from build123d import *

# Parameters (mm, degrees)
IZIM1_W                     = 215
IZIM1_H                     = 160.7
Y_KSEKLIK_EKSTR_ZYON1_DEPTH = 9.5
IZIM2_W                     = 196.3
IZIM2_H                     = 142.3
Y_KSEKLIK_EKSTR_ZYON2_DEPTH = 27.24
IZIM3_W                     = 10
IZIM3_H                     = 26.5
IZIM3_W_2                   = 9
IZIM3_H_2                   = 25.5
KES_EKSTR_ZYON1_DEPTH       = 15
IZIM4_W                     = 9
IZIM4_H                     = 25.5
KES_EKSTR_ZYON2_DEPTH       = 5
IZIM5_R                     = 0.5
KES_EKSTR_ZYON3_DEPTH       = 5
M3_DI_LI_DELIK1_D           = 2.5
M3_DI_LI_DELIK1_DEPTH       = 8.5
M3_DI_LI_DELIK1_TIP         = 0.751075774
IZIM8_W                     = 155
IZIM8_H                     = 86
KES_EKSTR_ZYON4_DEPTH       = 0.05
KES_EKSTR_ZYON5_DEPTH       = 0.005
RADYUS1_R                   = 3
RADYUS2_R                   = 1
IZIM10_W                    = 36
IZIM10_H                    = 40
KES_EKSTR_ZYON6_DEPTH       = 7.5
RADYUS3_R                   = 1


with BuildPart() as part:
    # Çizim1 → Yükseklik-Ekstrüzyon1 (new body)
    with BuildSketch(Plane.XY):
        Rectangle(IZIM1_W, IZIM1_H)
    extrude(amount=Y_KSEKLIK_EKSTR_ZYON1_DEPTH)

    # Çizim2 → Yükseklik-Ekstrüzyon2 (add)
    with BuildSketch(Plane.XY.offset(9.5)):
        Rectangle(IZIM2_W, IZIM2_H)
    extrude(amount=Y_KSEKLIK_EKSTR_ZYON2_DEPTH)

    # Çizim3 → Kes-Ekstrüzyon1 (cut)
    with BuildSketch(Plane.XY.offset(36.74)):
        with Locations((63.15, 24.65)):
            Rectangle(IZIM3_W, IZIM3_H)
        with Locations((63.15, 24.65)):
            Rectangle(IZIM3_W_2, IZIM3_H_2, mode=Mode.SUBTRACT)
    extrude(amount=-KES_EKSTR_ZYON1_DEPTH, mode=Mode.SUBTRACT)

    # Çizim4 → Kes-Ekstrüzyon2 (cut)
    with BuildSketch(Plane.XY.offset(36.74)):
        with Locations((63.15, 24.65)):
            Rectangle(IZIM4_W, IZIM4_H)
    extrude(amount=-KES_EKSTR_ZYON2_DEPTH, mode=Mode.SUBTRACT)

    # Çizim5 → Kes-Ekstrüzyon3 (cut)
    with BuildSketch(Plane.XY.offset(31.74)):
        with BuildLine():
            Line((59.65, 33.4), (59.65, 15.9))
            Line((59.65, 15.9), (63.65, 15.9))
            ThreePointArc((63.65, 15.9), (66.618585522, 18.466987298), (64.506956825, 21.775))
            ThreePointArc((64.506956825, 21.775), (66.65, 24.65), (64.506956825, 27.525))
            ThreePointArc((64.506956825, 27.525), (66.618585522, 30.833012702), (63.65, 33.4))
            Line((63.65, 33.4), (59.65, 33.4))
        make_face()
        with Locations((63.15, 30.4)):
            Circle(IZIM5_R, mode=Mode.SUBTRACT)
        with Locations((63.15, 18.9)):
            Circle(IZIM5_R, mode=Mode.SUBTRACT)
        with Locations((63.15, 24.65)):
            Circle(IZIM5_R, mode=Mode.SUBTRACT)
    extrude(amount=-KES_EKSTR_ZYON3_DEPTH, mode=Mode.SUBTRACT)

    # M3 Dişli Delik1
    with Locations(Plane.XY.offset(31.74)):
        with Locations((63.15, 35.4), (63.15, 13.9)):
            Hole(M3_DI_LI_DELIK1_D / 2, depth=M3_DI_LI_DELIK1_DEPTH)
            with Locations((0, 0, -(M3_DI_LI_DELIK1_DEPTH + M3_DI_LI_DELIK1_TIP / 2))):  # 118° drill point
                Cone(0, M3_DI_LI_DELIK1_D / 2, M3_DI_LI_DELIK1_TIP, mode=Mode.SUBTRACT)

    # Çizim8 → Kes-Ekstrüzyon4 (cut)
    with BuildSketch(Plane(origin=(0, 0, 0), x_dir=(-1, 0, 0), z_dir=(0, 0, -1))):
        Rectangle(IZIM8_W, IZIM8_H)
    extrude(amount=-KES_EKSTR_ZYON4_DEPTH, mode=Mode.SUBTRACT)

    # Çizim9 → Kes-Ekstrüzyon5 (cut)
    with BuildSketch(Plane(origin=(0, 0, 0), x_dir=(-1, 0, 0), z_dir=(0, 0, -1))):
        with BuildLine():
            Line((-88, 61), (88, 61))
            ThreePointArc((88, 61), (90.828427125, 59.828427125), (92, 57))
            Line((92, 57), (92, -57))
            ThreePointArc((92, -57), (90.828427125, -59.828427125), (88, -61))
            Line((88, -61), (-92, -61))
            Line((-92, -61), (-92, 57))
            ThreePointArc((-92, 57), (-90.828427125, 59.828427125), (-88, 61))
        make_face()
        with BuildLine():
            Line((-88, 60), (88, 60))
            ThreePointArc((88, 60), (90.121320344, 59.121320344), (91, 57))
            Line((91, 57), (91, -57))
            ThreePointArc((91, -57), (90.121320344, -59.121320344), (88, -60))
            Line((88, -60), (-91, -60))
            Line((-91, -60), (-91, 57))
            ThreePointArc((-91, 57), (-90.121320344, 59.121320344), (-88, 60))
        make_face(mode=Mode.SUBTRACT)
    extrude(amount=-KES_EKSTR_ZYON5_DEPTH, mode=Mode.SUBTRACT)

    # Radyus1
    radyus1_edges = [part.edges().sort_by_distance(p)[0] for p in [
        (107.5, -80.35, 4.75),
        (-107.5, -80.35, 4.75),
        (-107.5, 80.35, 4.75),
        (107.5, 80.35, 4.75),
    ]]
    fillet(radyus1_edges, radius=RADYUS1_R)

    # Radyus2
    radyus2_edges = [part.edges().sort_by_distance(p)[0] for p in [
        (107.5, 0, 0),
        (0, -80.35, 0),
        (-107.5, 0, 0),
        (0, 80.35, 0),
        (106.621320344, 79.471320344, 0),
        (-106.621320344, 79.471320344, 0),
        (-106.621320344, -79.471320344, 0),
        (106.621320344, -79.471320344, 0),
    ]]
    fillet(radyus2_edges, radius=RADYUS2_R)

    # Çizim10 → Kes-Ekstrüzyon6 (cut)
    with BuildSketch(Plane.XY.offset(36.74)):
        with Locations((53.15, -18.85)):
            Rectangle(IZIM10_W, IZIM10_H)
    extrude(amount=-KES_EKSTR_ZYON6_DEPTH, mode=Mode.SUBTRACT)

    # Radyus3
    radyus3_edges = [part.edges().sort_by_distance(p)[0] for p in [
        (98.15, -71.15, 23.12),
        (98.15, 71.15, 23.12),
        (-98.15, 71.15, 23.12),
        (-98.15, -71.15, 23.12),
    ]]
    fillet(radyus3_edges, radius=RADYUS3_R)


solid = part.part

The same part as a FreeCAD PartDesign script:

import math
import FreeCAD as App
import Part
import Sketcher

V = App.Vector
Q = App.Units.Quantity


def edges_at(feature, points):
    """Names of the edges that pass closest to the given points."""
    edges = feature.Shape.Edges
    near = lambda p: min(range(len(edges)), key=lambda i: edges[i].distToShape(Part.Vertex(*p))[0])
    return sorted({f"Edge{near(p) + 1}" for p in points})

doc = App.newDocument("Part")
body = doc.addObject("PartDesign::Body", "Body")

sketch1 = body.newObject("Sketcher::SketchObject", "Sketch")
sketch1.AttachmentSupport = (doc.getObject("XY_Plane"), [""])
sketch1.MapMode = "FlatFace"
sketch1.addGeometry(Part.LineSegment(V(-107.5, 80.35, 0), V(-107.5, -80.35, 0)), False)
sketch1.addGeometry(Part.LineSegment(V(-107.5, -80.35, 0), V(107.5, -80.35, 0)), False)
sketch1.addGeometry(Part.LineSegment(V(107.5, -80.35, 0), V(107.5, 80.35, 0)), False)
sketch1.addGeometry(Part.LineSegment(V(107.5, 80.35, 0), V(-107.5, 80.35, 0)), False)
sketch1.addConstraint(Sketcher.Constraint("Coincident", 0, 2, 1, 1))
sketch1.addConstraint(Sketcher.Constraint("Coincident", 1, 2, 2, 1))
sketch1.addConstraint(Sketcher.Constraint("Coincident", 2, 2, 3, 1))
sketch1.addConstraint(Sketcher.Constraint("Coincident", 3, 2, 0, 1))
sketch1.addConstraint(Sketcher.Constraint("Vertical", 0))
sketch1.addConstraint(Sketcher.Constraint("Horizontal", 1))
sketch1.addConstraint(Sketcher.Constraint("Vertical", 2))
sketch1.addConstraint(Sketcher.Constraint("Horizontal", 3))
sketch1.addConstraint(Sketcher.Constraint("Symmetric", 0, 2, 2, 2, -1, 1))
sketch1.addConstraint(Sketcher.Constraint("DistanceX", 1, 1, 1, 2, Q("215 mm")))
sketch1.addConstraint(Sketcher.Constraint("DistanceY", 0, 2, 0, 1, Q("160.7 mm")))
pad1 = body.newObject("PartDesign::Pad", "Pad")
pad1.Profile = sketch1
pad1.Length = 9.5

sketch2 = body.newObject("Sketcher::SketchObject", "Sketch001")
sketch2.AttachmentSupport = (doc.getObject("XY_Plane"), [""])
sketch2.MapMode = "FlatFace"
sketch2.AttachmentOffset = App.Placement(V(0, 0, 9.5), App.Rotation())
sketch2.addGeometry(Part.LineSegment(V(-98.15, 71.15, 0), V(-98.15, -71.15, 0)), False)
sketch2.addGeometry(Part.LineSegment(V(-98.15, -71.15, 0), V(98.15, -71.15, 0)), False)
sketch2.addGeometry(Part.LineSegment(V(98.15, -71.15, 0), V(98.15, 71.15, 0)), False)
sketch2.addGeometry(Part.LineSegment(V(98.15, 71.15, 0), V(-98.15, 71.15, 0)), False)
sketch2.addConstraint(Sketcher.Constraint("Coincident", 0, 2, 1, 1))
sketch2.addConstraint(Sketcher.Constraint("Coincident", 1, 2, 2, 1))
sketch2.addConstraint(Sketcher.Constraint("Coincident", 2, 2, 3, 1))
sketch2.addConstraint(Sketcher.Constraint("Coincident", 3, 2, 0, 1))
sketch2.addConstraint(Sketcher.Constraint("Vertical", 0))
sketch2.addConstraint(Sketcher.Constraint("Horizontal", 1))
sketch2.addConstraint(Sketcher.Constraint("Vertical", 2))
sketch2.addConstraint(Sketcher.Constraint("Horizontal", 3))
sketch2.addConstraint(Sketcher.Constraint("Symmetric", 0, 2, 2, 2, -1, 1))
sketch2.addConstraint(Sketcher.Constraint("DistanceX", 1, 1, 1, 2, Q("196.3 mm")))
sketch2.addConstraint(Sketcher.Constraint("DistanceY", 0, 2, 0, 1, Q("142.3 mm")))
pad2 = body.newObject("PartDesign::Pad", "Pad001")
pad2.Profile = sketch2
pad2.Length = 27.24

sketch3 = body.newObject("Sketcher::SketchObject", "Sketch002")
sketch3.AttachmentSupport = (doc.getObject("XY_Plane"), [""])
sketch3.MapMode = "FlatFace"
sketch3.AttachmentOffset = App.Placement(V(0, 0, 36.74), App.Rotation())
sketch3.addGeometry(Part.LineSegment(V(58.15, 37.9, 0), V(58.15, 11.4, 0)), False)
sketch3.addGeometry(Part.LineSegment(V(58.15, 11.4, 0), V(68.15, 11.4, 0)), False)
sketch3.addGeometry(Part.LineSegment(V(68.15, 11.4, 0), V(68.15, 37.9, 0)), False)
sketch3.addGeometry(Part.LineSegment(V(68.15, 37.9, 0), V(58.15, 37.9, 0)), False)
sketch3.addGeometry(Part.LineSegment(V(67.65, 11.9, 0), V(58.65, 11.9, 0)), False)
sketch3.addGeometry(Part.LineSegment(V(58.65, 11.9, 0), V(58.65, 37.4, 0)), False)
sketch3.addGeometry(Part.LineSegment(V(58.65, 37.4, 0), V(67.65, 37.4, 0)), False)
sketch3.addGeometry(Part.LineSegment(V(67.65, 37.4, 0), V(67.65, 11.9, 0)), False)
sketch3.addConstraint(Sketcher.Constraint("Coincident", 0, 2, 1, 1))
sketch3.addConstraint(Sketcher.Constraint("Coincident", 1, 2, 2, 1))
sketch3.addConstraint(Sketcher.Constraint("Coincident", 2, 2, 3, 1))
sketch3.addConstraint(Sketcher.Constraint("Coincident", 3, 2, 0, 1))
sketch3.addConstraint(Sketcher.Constraint("Coincident", 4, 2, 5, 1))
sketch3.addConstraint(Sketcher.Constraint("Coincident", 5, 2, 6, 1))
sketch3.addConstraint(Sketcher.Constraint("Coincident", 6, 2, 7, 1))
sketch3.addConstraint(Sketcher.Constraint("Coincident", 7, 2, 4, 1))
sketch3.addConstraint(Sketcher.Constraint("Vertical", 0))
sketch3.addConstraint(Sketcher.Constraint("Horizontal", 1))
sketch3.addConstraint(Sketcher.Constraint("Vertical", 2))
sketch3.addConstraint(Sketcher.Constraint("Horizontal", 3))
sketch3.addConstraint(Sketcher.Constraint("Horizontal", 4))
sketch3.addConstraint(Sketcher.Constraint("Vertical", 5))
sketch3.addConstraint(Sketcher.Constraint("Horizontal", 6))
sketch3.addConstraint(Sketcher.Constraint("Vertical", 7))
sketch3.addConstraint(Sketcher.Constraint("DistanceX", 1, 1, 1, 2, Q("10 mm")))
sketch3.addConstraint(Sketcher.Constraint("DistanceX", 4, 2, 4, 1, Q("9 mm")))
sketch3.addConstraint(Sketcher.Constraint("DistanceY", 0, 2, 0, 1, Q("26.5 mm")))
sketch3.addConstraint(Sketcher.Constraint("DistanceY", 5, 1, 5, 2, Q("25.5 mm")))
sketch3.addConstraint(Sketcher.Constraint("DistanceY", 4, 2, 3, 2, Q("26 mm")))
sketch3.addConstraint(Sketcher.Constraint("DistanceY", -1, 1, 0, 2, Q("11.4 mm")))
sketch3.addConstraint(Sketcher.Constraint("DistanceX", 0, 2, 4, 2, Q("0.5 mm")))
sketch3.addConstraint(Sketcher.Constraint("DistanceX", -1, 1, 0, 2, Q("58.15 mm")))
pocket1 = body.newObject("PartDesign::Pocket", "Pocket")
pocket1.Profile = sketch3
pocket1.Length = 15

sketch4 = body.newObject("Sketcher::SketchObject", "Sketch003")
sketch4.AttachmentSupport = (doc.getObject("XY_Plane"), [""])
sketch4.MapMode = "FlatFace"
sketch4.AttachmentOffset = App.Placement(V(0, 0, 36.74), App.Rotation())
sketch4.addGeometry(Part.LineSegment(V(58.65, 37.4, 0), V(58.65, 11.9, 0)), False)
sketch4.addGeometry(Part.LineSegment(V(58.65, 11.9, 0), V(67.65, 11.9, 0)), False)
sketch4.addGeometry(Part.LineSegment(V(67.65, 11.9, 0), V(67.65, 37.4, 0)), False)
sketch4.addGeometry(Part.LineSegment(V(67.65, 37.4, 0), V(58.65, 37.4, 0)), False)
sketch4.addConstraint(Sketcher.Constraint("Coincident", 0, 2, 1, 1))
sketch4.addConstraint(Sketcher.Constraint("Coincident", 1, 2, 2, 1))
sketch4.addConstraint(Sketcher.Constraint("Coincident", 2, 2, 3, 1))
sketch4.addConstraint(Sketcher.Constraint("Coincident", 3, 2, 0, 1))
sketch4.addConstraint(Sketcher.Constraint("Vertical", 0))
sketch4.addConstraint(Sketcher.Constraint("Horizontal", 1))
sketch4.addConstraint(Sketcher.Constraint("Vertical", 2))
sketch4.addConstraint(Sketcher.Constraint("Horizontal", 3))
sketch4.addConstraint(Sketcher.Constraint("DistanceX", 1, 1, 1, 2, Q("9 mm")))
sketch4.addConstraint(Sketcher.Constraint("DistanceY", 0, 2, 0, 1, Q("25.5 mm")))
sketch4.addConstraint(Sketcher.Constraint("DistanceY", -1, 1, 0, 2, Q("11.9 mm")))
sketch4.addConstraint(Sketcher.Constraint("DistanceX", -1, 1, 0, 2, Q("58.65 mm")))
pocket2 = body.newObject("PartDesign::Pocket", "Pocket001")
pocket2.Profile = sketch4
pocket2.Length = 5

sketch5 = body.newObject("Sketcher::SketchObject", "Sketch004")
sketch5.AttachmentSupport = (doc.getObject("XY_Plane"), [""])
sketch5.MapMode = "FlatFace"
sketch5.AttachmentOffset = App.Placement(V(0, 0, 31.74), App.Rotation())
sketch5.addGeometry(Part.LineSegment(V(59.65, 33.4, 0), V(59.65, 15.9, 0)), False)
sketch5.addGeometry(Part.LineSegment(V(59.65, 15.9, 0), V(63.65, 15.9, 0)), False)
sketch5.addGeometry(Part.ArcOfCircle(Part.Circle(V(63.65, 18.9, 0), V(0, 0, 1), 3), math.radians(-90), math.radians(73.402158)), False)
sketch5.addGeometry(Part.ArcOfCircle(Part.Circle(V(63.65, 24.65, 0), V(0, 0, 1), 3), math.radians(-73.402158), math.radians(73.402158)), False)
sketch5.addGeometry(Part.ArcOfCircle(Part.Circle(V(63.65, 30.4, 0), V(0, 0, 1), 3), math.radians(-73.402158), math.radians(90)), False)
sketch5.addGeometry(Part.LineSegment(V(63.65, 33.4, 0), V(59.65, 33.4, 0)), False)
sketch5.addGeometry(Part.Circle(V(63.15, 18.9, 0), V(0, 0, 1), 0.5), False)
sketch5.addGeometry(Part.Circle(V(63.15, 24.65, 0), V(0, 0, 1), 0.5), False)
sketch5.addGeometry(Part.Circle(V(63.15, 30.4, 0), V(0, 0, 1), 0.5), False)
sketch5.addConstraint(Sketcher.Constraint("Coincident", 0, 2, 1, 1))
sketch5.addConstraint(Sketcher.Constraint("Tangent", 1, 2, 2, 1))
sketch5.addConstraint(Sketcher.Constraint("Coincident", 2, 2, 3, 1))
sketch5.addConstraint(Sketcher.Constraint("Coincident", 3, 2, 4, 1))
sketch5.addConstraint(Sketcher.Constraint("Tangent", 4, 2, 5, 1))
sketch5.addConstraint(Sketcher.Constraint("Coincident", 5, 2, 0, 1))
sketch5.addConstraint(Sketcher.Constraint("Vertical", 0))
sketch5.addConstraint(Sketcher.Constraint("Horizontal", 1))
sketch5.addConstraint(Sketcher.Constraint("Horizontal", 5))
sketch5.addConstraint(Sketcher.Constraint("Equal", 2, 3))
sketch5.addConstraint(Sketcher.Constraint("Equal", 3, 4))
sketch5.addConstraint(Sketcher.Constraint("Equal", 6, 7))
sketch5.addConstraint(Sketcher.Constraint("Equal", 7, 8))
sketch5.addConstraint(Sketcher.Constraint("Horizontal", 2, 3, 6, 3))
sketch5.addConstraint(Sketcher.Constraint("Horizontal", 3, 3, 7, 3))
sketch5.addConstraint(Sketcher.Constraint("Horizontal", 4, 3, 8, 3))
sketch5.addConstraint(Sketcher.Constraint("Vertical", 2, 3, 3, 3))
sketch5.addConstraint(Sketcher.Constraint("Vertical", 3, 3, 4, 3))
sketch5.addConstraint(Sketcher.Constraint("Vertical", 6, 3, 7, 3))
sketch5.addConstraint(Sketcher.Constraint("Vertical", 7, 3, 8, 3))
sketch5.addConstraint(Sketcher.Constraint("Vertical", 2, 2, 3, 2))
sketch5.addConstraint(Sketcher.Constraint("Diameter", 6, Q("1 mm")))
sketch5.addConstraint(Sketcher.Constraint("Radius", 2, Q("3 mm")))
sketch5.addConstraint(Sketcher.Constraint("DistanceX", 1, 1, 1, 2, Q("4 mm")))
sketch5.addConstraint(Sketcher.Constraint("DistanceY", 0, 2, 0, 1, Q("17.5 mm")))
sketch5.addConstraint(Sketcher.Constraint("DistanceY", -1, 1, 2, 3, Q("18.9 mm")))
sketch5.addConstraint(Sketcher.Constraint("DistanceX", 6, 3, 2, 3, Q("0.5 mm")))
sketch5.addConstraint(Sketcher.Constraint("DistanceX", -1, 1, 2, 3, Q("63.65 mm")))
pocket3 = body.newObject("PartDesign::Pocket", "Pocket002")
pocket3.Profile = sketch5
pocket3.Length = 5

sketch6 = body.newObject("Sketcher::SketchObject", "Sketch005")
sketch6.AttachmentSupport = (doc.getObject("XY_Plane"), [""])
sketch6.MapMode = "FlatFace"
sketch6.AttachmentOffset = App.Placement(V(0, 0, 31.74), App.Rotation())
sketch6.addGeometry(Part.Circle(V(63.15, 35.4, 0), V(0, 0, 1), 1.25), False)
sketch6.addGeometry(Part.Circle(V(63.15, 13.9, 0), V(0, 0, 1), 1.25), False)
sketch6.addConstraint(Sketcher.Constraint("Equal", 0, 1))
sketch6.addConstraint(Sketcher.Constraint("Vertical", 0, 3, 1, 3))
sketch6.addConstraint(Sketcher.Constraint("Diameter", 0, Q("2.5 mm")))
sketch6.addConstraint(Sketcher.Constraint("DistanceY", -1, 1, 0, 3, Q("35.4 mm")))
sketch6.addConstraint(Sketcher.Constraint("DistanceY", -1, 1, 1, 3, Q("13.9 mm")))
sketch6.addConstraint(Sketcher.Constraint("DistanceX", -1, 1, 0, 3, Q("63.15 mm")))
doc.recompute()
hole = body.newObject("PartDesign::Hole", "Hole")
hole.Profile = sketch6
hole.ThreadType = "None"
hole.Diameter = 2.5
hole.DepthType = "Dimension"
hole.Depth = 8.5
hole.DrillPoint = "Angled"
hole.DrillPointAngle = 118

sketch7 = body.newObject("Sketcher::SketchObject", "Sketch006")
sketch7.AttachmentSupport = (doc.getObject("XY_Plane"), [""])
sketch7.MapMode = "FlatFace"
sketch7.addGeometry(Part.LineSegment(V(77.5, 43, 0), V(77.5, -43, 0)), False)
sketch7.addGeometry(Part.LineSegment(V(77.5, -43, 0), V(-77.5, -43, 0)), False)
sketch7.addGeometry(Part.LineSegment(V(-77.5, -43, 0), V(-77.5, 43, 0)), False)
sketch7.addGeometry(Part.LineSegment(V(-77.5, 43, 0), V(77.5, 43, 0)), False)
sketch7.addConstraint(Sketcher.Constraint("Coincident", 0, 2, 1, 1))
sketch7.addConstraint(Sketcher.Constraint("Coincident", 1, 2, 2, 1))
sketch7.addConstraint(Sketcher.Constraint("Coincident", 2, 2, 3, 1))
sketch7.addConstraint(Sketcher.Constraint("Coincident", 3, 2, 0, 1))
sketch7.addConstraint(Sketcher.Constraint("Vertical", 0))
sketch7.addConstraint(Sketcher.Constraint("Horizontal", 1))
sketch7.addConstraint(Sketcher.Constraint("Vertical", 2))
sketch7.addConstraint(Sketcher.Constraint("Horizontal", 3))
sketch7.addConstraint(Sketcher.Constraint("Symmetric", 0, 2, 2, 2, -1, 1))
sketch7.addConstraint(Sketcher.Constraint("DistanceX", 1, 2, 1, 1, Q("155 mm")))
sketch7.addConstraint(Sketcher.Constraint("DistanceY", 0, 2, 0, 1, Q("86 mm")))
pocket4 = body.newObject("PartDesign::Pocket", "Pocket003")
pocket4.Profile = sketch7
pocket4.Length = 0.05
pocket4.Reversed = True

sketch8 = body.newObject("Sketcher::SketchObject", "Sketch007")
sketch8.AttachmentSupport = (doc.getObject("XY_Plane"), [""])
sketch8.MapMode = "FlatFace"
sketch8.addGeometry(Part.LineSegment(V(-88, 61, 0), V(88, 61, 0)), False)
sketch8.addGeometry(Part.ArcOfCircle(Part.Circle(V(88, 57, 0), V(0, 0, 1), 4), math.radians(0), math.radians(90)), False)
sketch8.addGeometry(Part.LineSegment(V(92, 57, 0), V(92, -61, 0)), False)
sketch8.addGeometry(Part.LineSegment(V(92, -61, 0), V(-88, -61, 0)), False)
sketch8.addGeometry(Part.ArcOfCircle(Part.Circle(V(-88, -57, 0), V(0, 0, 1), 4), math.radians(180), math.radians(270)), False)
sketch8.addGeometry(Part.LineSegment(V(-92, -57, 0), V(-92, 57, 0)), False)
sketch8.addGeometry(Part.ArcOfCircle(Part.Circle(V(-88, 57, 0), V(0, 0, 1), 4), math.radians(90), math.radians(180)), False)
sketch8.addGeometry(Part.LineSegment(V(88, 60, 0), V(-88, 60, 0)), False)
sketch8.addGeometry(Part.ArcOfCircle(Part.Circle(V(-88, 57, 0), V(0, 0, 1), 3), math.radians(90), math.radians(180)), False)
sketch8.addGeometry(Part.LineSegment(V(-91, 57, 0), V(-91, -57, 0)), False)
sketch8.addGeometry(Part.ArcOfCircle(Part.Circle(V(-88, -57, 0), V(0, 0, 1), 3), math.radians(180), math.radians(270)), False)
sketch8.addGeometry(Part.LineSegment(V(-88, -60, 0), V(91, -60, 0)), False)
sketch8.addGeometry(Part.LineSegment(V(91, -60, 0), V(91, 57, 0)), False)
sketch8.addGeometry(Part.ArcOfCircle(Part.Circle(V(88, 57, 0), V(0, 0, 1), 3), math.radians(0), math.radians(90)), False)
sketch8.addConstraint(Sketcher.Constraint("Tangent", 0, 2, 1, 2))
sketch8.addConstraint(Sketcher.Constraint("Tangent", 1, 1, 2, 1))
sketch8.addConstraint(Sketcher.Constraint("Coincident", 2, 2, 3, 1))
sketch8.addConstraint(Sketcher.Constraint("Tangent", 3, 2, 4, 2))
sketch8.addConstraint(Sketcher.Constraint("Tangent", 4, 1, 5, 1))
sketch8.addConstraint(Sketcher.Constraint("Tangent", 5, 2, 6, 2))
sketch8.addConstraint(Sketcher.Constraint("Tangent", 6, 1, 0, 1))
sketch8.addConstraint(Sketcher.Constraint("Tangent", 7, 2, 8, 1))
sketch8.addConstraint(Sketcher.Constraint("Tangent", 8, 2, 9, 1))
sketch8.addConstraint(Sketcher.Constraint("Tangent", 9, 2, 10, 1))
sketch8.addConstraint(Sketcher.Constraint("Tangent", 10, 2, 11, 1))
sketch8.addConstraint(Sketcher.Constraint("Coincident", 11, 2, 12, 1))
sketch8.addConstraint(Sketcher.Constraint("Tangent", 12, 2, 13, 1))
sketch8.addConstraint(Sketcher.Constraint("Tangent", 13, 2, 7, 1))
sketch8.addConstraint(Sketcher.Constraint("Horizontal", 0))
sketch8.addConstraint(Sketcher.Constraint("Vertical", 2))
sketch8.addConstraint(Sketcher.Constraint("Horizontal", 3))
sketch8.addConstraint(Sketcher.Constraint("Vertical", 5))
sketch8.addConstraint(Sketcher.Constraint("Horizontal", 7))
sketch8.addConstraint(Sketcher.Constraint("Vertical", 9))
sketch8.addConstraint(Sketcher.Constraint("Horizontal", 11))
sketch8.addConstraint(Sketcher.Constraint("Vertical", 12))
sketch8.addConstraint(Sketcher.Constraint("Coincident", 8, 3, 6, 3))
sketch8.addConstraint(Sketcher.Constraint("Coincident", 10, 3, 4, 3))
sketch8.addConstraint(Sketcher.Constraint("Coincident", 13, 3, 1, 3))
sketch8.addConstraint(Sketcher.Constraint("Equal", 1, 4))
sketch8.addConstraint(Sketcher.Constraint("Equal", 4, 6))
sketch8.addConstraint(Sketcher.Constraint("Symmetric", 1, 3, 4, 3, -1, 1))
sketch8.addConstraint(Sketcher.Constraint("Radius", 1, Q("4 mm")))
sketch8.addConstraint(Sketcher.Constraint("Radius", 8, Q("3 mm")))
sketch8.addConstraint(Sketcher.Constraint("DistanceX", 0, 1, 0, 2, Q("176 mm")))
sketch8.addConstraint(Sketcher.Constraint("DistanceY", 2, 2, 2, 1, Q("118 mm")))
pocket5 = body.newObject("PartDesign::Pocket", "Pocket004")
pocket5.Profile = sketch8
pocket5.Length = 0.005
pocket5.Reversed = True
doc.recompute()

fillet = body.newObject("PartDesign::Fillet", "Fillet")
fillet.Base = (pocket5, edges_at(pocket5, [
    (107.5, -80.35, 4.75),
    (-107.5, -80.35, 4.75),
    (-107.5, 80.35, 4.75),
    (107.5, 80.35, 4.75),
]))
fillet.Radius = 3
doc.recompute()

fillet2 = body.newObject("PartDesign::Fillet", "Fillet001")
fillet2.Base = (fillet, edges_at(fillet, [
    (107.5, 0, 0),
    (0, -80.35, 0),
    (-107.5, 0, 0),
    (0, 80.35, 0),
    (106.621, 79.471, 0),
    (-106.621, 79.471, 0),
    (-106.621, -79.471, 0),
    (106.621, -79.471, 0),
]))
fillet2.Radius = 1

sketch9 = body.newObject("Sketcher::SketchObject", "Sketch008")
sketch9.AttachmentSupport = (doc.getObject("XY_Plane"), [""])
sketch9.MapMode = "FlatFace"
sketch9.AttachmentOffset = App.Placement(V(0, 0, 36.74), App.Rotation())
sketch9.addGeometry(Part.LineSegment(V(35.15, 1.15, 0), V(35.15, -38.85, 0)), False)
sketch9.addGeometry(Part.LineSegment(V(35.15, -38.85, 0), V(71.15, -38.85, 0)), False)
sketch9.addGeometry(Part.LineSegment(V(71.15, -38.85, 0), V(71.15, 1.15, 0)), False)
sketch9.addGeometry(Part.LineSegment(V(71.15, 1.15, 0), V(35.15, 1.15, 0)), False)
sketch9.addConstraint(Sketcher.Constraint("Coincident", 0, 2, 1, 1))
sketch9.addConstraint(Sketcher.Constraint("Coincident", 1, 2, 2, 1))
sketch9.addConstraint(Sketcher.Constraint("Coincident", 2, 2, 3, 1))
sketch9.addConstraint(Sketcher.Constraint("Coincident", 3, 2, 0, 1))
sketch9.addConstraint(Sketcher.Constraint("Vertical", 0))
sketch9.addConstraint(Sketcher.Constraint("Horizontal", 1))
sketch9.addConstraint(Sketcher.Constraint("Vertical", 2))
sketch9.addConstraint(Sketcher.Constraint("Horizontal", 3))
sketch9.addConstraint(Sketcher.Constraint("DistanceX", 1, 1, 1, 2, Q("36 mm")))
sketch9.addConstraint(Sketcher.Constraint("DistanceY", 0, 2, 0, 1, Q("40 mm")))
sketch9.addConstraint(Sketcher.Constraint("DistanceX", -1, 1, 0, 2, Q("35.15 mm")))
sketch9.addConstraint(Sketcher.Constraint("DistanceY", 0, 2, -1, 1, Q("38.85 mm")))
pocket6 = body.newObject("PartDesign::Pocket", "Pocket005")
pocket6.Profile = sketch9
pocket6.Length = 7.5
doc.recompute()

fillet3 = body.newObject("PartDesign::Fillet", "Fillet002")
fillet3.Base = (pocket6, edges_at(pocket6, [
    (98.15, -71.15, 23.12),
    (98.15, 71.15, 23.12),
    (-98.15, 71.15, 23.12),
    (-98.15, -71.15, 23.12),
]))
fillet3.Radius = 1

doc.recompute()
